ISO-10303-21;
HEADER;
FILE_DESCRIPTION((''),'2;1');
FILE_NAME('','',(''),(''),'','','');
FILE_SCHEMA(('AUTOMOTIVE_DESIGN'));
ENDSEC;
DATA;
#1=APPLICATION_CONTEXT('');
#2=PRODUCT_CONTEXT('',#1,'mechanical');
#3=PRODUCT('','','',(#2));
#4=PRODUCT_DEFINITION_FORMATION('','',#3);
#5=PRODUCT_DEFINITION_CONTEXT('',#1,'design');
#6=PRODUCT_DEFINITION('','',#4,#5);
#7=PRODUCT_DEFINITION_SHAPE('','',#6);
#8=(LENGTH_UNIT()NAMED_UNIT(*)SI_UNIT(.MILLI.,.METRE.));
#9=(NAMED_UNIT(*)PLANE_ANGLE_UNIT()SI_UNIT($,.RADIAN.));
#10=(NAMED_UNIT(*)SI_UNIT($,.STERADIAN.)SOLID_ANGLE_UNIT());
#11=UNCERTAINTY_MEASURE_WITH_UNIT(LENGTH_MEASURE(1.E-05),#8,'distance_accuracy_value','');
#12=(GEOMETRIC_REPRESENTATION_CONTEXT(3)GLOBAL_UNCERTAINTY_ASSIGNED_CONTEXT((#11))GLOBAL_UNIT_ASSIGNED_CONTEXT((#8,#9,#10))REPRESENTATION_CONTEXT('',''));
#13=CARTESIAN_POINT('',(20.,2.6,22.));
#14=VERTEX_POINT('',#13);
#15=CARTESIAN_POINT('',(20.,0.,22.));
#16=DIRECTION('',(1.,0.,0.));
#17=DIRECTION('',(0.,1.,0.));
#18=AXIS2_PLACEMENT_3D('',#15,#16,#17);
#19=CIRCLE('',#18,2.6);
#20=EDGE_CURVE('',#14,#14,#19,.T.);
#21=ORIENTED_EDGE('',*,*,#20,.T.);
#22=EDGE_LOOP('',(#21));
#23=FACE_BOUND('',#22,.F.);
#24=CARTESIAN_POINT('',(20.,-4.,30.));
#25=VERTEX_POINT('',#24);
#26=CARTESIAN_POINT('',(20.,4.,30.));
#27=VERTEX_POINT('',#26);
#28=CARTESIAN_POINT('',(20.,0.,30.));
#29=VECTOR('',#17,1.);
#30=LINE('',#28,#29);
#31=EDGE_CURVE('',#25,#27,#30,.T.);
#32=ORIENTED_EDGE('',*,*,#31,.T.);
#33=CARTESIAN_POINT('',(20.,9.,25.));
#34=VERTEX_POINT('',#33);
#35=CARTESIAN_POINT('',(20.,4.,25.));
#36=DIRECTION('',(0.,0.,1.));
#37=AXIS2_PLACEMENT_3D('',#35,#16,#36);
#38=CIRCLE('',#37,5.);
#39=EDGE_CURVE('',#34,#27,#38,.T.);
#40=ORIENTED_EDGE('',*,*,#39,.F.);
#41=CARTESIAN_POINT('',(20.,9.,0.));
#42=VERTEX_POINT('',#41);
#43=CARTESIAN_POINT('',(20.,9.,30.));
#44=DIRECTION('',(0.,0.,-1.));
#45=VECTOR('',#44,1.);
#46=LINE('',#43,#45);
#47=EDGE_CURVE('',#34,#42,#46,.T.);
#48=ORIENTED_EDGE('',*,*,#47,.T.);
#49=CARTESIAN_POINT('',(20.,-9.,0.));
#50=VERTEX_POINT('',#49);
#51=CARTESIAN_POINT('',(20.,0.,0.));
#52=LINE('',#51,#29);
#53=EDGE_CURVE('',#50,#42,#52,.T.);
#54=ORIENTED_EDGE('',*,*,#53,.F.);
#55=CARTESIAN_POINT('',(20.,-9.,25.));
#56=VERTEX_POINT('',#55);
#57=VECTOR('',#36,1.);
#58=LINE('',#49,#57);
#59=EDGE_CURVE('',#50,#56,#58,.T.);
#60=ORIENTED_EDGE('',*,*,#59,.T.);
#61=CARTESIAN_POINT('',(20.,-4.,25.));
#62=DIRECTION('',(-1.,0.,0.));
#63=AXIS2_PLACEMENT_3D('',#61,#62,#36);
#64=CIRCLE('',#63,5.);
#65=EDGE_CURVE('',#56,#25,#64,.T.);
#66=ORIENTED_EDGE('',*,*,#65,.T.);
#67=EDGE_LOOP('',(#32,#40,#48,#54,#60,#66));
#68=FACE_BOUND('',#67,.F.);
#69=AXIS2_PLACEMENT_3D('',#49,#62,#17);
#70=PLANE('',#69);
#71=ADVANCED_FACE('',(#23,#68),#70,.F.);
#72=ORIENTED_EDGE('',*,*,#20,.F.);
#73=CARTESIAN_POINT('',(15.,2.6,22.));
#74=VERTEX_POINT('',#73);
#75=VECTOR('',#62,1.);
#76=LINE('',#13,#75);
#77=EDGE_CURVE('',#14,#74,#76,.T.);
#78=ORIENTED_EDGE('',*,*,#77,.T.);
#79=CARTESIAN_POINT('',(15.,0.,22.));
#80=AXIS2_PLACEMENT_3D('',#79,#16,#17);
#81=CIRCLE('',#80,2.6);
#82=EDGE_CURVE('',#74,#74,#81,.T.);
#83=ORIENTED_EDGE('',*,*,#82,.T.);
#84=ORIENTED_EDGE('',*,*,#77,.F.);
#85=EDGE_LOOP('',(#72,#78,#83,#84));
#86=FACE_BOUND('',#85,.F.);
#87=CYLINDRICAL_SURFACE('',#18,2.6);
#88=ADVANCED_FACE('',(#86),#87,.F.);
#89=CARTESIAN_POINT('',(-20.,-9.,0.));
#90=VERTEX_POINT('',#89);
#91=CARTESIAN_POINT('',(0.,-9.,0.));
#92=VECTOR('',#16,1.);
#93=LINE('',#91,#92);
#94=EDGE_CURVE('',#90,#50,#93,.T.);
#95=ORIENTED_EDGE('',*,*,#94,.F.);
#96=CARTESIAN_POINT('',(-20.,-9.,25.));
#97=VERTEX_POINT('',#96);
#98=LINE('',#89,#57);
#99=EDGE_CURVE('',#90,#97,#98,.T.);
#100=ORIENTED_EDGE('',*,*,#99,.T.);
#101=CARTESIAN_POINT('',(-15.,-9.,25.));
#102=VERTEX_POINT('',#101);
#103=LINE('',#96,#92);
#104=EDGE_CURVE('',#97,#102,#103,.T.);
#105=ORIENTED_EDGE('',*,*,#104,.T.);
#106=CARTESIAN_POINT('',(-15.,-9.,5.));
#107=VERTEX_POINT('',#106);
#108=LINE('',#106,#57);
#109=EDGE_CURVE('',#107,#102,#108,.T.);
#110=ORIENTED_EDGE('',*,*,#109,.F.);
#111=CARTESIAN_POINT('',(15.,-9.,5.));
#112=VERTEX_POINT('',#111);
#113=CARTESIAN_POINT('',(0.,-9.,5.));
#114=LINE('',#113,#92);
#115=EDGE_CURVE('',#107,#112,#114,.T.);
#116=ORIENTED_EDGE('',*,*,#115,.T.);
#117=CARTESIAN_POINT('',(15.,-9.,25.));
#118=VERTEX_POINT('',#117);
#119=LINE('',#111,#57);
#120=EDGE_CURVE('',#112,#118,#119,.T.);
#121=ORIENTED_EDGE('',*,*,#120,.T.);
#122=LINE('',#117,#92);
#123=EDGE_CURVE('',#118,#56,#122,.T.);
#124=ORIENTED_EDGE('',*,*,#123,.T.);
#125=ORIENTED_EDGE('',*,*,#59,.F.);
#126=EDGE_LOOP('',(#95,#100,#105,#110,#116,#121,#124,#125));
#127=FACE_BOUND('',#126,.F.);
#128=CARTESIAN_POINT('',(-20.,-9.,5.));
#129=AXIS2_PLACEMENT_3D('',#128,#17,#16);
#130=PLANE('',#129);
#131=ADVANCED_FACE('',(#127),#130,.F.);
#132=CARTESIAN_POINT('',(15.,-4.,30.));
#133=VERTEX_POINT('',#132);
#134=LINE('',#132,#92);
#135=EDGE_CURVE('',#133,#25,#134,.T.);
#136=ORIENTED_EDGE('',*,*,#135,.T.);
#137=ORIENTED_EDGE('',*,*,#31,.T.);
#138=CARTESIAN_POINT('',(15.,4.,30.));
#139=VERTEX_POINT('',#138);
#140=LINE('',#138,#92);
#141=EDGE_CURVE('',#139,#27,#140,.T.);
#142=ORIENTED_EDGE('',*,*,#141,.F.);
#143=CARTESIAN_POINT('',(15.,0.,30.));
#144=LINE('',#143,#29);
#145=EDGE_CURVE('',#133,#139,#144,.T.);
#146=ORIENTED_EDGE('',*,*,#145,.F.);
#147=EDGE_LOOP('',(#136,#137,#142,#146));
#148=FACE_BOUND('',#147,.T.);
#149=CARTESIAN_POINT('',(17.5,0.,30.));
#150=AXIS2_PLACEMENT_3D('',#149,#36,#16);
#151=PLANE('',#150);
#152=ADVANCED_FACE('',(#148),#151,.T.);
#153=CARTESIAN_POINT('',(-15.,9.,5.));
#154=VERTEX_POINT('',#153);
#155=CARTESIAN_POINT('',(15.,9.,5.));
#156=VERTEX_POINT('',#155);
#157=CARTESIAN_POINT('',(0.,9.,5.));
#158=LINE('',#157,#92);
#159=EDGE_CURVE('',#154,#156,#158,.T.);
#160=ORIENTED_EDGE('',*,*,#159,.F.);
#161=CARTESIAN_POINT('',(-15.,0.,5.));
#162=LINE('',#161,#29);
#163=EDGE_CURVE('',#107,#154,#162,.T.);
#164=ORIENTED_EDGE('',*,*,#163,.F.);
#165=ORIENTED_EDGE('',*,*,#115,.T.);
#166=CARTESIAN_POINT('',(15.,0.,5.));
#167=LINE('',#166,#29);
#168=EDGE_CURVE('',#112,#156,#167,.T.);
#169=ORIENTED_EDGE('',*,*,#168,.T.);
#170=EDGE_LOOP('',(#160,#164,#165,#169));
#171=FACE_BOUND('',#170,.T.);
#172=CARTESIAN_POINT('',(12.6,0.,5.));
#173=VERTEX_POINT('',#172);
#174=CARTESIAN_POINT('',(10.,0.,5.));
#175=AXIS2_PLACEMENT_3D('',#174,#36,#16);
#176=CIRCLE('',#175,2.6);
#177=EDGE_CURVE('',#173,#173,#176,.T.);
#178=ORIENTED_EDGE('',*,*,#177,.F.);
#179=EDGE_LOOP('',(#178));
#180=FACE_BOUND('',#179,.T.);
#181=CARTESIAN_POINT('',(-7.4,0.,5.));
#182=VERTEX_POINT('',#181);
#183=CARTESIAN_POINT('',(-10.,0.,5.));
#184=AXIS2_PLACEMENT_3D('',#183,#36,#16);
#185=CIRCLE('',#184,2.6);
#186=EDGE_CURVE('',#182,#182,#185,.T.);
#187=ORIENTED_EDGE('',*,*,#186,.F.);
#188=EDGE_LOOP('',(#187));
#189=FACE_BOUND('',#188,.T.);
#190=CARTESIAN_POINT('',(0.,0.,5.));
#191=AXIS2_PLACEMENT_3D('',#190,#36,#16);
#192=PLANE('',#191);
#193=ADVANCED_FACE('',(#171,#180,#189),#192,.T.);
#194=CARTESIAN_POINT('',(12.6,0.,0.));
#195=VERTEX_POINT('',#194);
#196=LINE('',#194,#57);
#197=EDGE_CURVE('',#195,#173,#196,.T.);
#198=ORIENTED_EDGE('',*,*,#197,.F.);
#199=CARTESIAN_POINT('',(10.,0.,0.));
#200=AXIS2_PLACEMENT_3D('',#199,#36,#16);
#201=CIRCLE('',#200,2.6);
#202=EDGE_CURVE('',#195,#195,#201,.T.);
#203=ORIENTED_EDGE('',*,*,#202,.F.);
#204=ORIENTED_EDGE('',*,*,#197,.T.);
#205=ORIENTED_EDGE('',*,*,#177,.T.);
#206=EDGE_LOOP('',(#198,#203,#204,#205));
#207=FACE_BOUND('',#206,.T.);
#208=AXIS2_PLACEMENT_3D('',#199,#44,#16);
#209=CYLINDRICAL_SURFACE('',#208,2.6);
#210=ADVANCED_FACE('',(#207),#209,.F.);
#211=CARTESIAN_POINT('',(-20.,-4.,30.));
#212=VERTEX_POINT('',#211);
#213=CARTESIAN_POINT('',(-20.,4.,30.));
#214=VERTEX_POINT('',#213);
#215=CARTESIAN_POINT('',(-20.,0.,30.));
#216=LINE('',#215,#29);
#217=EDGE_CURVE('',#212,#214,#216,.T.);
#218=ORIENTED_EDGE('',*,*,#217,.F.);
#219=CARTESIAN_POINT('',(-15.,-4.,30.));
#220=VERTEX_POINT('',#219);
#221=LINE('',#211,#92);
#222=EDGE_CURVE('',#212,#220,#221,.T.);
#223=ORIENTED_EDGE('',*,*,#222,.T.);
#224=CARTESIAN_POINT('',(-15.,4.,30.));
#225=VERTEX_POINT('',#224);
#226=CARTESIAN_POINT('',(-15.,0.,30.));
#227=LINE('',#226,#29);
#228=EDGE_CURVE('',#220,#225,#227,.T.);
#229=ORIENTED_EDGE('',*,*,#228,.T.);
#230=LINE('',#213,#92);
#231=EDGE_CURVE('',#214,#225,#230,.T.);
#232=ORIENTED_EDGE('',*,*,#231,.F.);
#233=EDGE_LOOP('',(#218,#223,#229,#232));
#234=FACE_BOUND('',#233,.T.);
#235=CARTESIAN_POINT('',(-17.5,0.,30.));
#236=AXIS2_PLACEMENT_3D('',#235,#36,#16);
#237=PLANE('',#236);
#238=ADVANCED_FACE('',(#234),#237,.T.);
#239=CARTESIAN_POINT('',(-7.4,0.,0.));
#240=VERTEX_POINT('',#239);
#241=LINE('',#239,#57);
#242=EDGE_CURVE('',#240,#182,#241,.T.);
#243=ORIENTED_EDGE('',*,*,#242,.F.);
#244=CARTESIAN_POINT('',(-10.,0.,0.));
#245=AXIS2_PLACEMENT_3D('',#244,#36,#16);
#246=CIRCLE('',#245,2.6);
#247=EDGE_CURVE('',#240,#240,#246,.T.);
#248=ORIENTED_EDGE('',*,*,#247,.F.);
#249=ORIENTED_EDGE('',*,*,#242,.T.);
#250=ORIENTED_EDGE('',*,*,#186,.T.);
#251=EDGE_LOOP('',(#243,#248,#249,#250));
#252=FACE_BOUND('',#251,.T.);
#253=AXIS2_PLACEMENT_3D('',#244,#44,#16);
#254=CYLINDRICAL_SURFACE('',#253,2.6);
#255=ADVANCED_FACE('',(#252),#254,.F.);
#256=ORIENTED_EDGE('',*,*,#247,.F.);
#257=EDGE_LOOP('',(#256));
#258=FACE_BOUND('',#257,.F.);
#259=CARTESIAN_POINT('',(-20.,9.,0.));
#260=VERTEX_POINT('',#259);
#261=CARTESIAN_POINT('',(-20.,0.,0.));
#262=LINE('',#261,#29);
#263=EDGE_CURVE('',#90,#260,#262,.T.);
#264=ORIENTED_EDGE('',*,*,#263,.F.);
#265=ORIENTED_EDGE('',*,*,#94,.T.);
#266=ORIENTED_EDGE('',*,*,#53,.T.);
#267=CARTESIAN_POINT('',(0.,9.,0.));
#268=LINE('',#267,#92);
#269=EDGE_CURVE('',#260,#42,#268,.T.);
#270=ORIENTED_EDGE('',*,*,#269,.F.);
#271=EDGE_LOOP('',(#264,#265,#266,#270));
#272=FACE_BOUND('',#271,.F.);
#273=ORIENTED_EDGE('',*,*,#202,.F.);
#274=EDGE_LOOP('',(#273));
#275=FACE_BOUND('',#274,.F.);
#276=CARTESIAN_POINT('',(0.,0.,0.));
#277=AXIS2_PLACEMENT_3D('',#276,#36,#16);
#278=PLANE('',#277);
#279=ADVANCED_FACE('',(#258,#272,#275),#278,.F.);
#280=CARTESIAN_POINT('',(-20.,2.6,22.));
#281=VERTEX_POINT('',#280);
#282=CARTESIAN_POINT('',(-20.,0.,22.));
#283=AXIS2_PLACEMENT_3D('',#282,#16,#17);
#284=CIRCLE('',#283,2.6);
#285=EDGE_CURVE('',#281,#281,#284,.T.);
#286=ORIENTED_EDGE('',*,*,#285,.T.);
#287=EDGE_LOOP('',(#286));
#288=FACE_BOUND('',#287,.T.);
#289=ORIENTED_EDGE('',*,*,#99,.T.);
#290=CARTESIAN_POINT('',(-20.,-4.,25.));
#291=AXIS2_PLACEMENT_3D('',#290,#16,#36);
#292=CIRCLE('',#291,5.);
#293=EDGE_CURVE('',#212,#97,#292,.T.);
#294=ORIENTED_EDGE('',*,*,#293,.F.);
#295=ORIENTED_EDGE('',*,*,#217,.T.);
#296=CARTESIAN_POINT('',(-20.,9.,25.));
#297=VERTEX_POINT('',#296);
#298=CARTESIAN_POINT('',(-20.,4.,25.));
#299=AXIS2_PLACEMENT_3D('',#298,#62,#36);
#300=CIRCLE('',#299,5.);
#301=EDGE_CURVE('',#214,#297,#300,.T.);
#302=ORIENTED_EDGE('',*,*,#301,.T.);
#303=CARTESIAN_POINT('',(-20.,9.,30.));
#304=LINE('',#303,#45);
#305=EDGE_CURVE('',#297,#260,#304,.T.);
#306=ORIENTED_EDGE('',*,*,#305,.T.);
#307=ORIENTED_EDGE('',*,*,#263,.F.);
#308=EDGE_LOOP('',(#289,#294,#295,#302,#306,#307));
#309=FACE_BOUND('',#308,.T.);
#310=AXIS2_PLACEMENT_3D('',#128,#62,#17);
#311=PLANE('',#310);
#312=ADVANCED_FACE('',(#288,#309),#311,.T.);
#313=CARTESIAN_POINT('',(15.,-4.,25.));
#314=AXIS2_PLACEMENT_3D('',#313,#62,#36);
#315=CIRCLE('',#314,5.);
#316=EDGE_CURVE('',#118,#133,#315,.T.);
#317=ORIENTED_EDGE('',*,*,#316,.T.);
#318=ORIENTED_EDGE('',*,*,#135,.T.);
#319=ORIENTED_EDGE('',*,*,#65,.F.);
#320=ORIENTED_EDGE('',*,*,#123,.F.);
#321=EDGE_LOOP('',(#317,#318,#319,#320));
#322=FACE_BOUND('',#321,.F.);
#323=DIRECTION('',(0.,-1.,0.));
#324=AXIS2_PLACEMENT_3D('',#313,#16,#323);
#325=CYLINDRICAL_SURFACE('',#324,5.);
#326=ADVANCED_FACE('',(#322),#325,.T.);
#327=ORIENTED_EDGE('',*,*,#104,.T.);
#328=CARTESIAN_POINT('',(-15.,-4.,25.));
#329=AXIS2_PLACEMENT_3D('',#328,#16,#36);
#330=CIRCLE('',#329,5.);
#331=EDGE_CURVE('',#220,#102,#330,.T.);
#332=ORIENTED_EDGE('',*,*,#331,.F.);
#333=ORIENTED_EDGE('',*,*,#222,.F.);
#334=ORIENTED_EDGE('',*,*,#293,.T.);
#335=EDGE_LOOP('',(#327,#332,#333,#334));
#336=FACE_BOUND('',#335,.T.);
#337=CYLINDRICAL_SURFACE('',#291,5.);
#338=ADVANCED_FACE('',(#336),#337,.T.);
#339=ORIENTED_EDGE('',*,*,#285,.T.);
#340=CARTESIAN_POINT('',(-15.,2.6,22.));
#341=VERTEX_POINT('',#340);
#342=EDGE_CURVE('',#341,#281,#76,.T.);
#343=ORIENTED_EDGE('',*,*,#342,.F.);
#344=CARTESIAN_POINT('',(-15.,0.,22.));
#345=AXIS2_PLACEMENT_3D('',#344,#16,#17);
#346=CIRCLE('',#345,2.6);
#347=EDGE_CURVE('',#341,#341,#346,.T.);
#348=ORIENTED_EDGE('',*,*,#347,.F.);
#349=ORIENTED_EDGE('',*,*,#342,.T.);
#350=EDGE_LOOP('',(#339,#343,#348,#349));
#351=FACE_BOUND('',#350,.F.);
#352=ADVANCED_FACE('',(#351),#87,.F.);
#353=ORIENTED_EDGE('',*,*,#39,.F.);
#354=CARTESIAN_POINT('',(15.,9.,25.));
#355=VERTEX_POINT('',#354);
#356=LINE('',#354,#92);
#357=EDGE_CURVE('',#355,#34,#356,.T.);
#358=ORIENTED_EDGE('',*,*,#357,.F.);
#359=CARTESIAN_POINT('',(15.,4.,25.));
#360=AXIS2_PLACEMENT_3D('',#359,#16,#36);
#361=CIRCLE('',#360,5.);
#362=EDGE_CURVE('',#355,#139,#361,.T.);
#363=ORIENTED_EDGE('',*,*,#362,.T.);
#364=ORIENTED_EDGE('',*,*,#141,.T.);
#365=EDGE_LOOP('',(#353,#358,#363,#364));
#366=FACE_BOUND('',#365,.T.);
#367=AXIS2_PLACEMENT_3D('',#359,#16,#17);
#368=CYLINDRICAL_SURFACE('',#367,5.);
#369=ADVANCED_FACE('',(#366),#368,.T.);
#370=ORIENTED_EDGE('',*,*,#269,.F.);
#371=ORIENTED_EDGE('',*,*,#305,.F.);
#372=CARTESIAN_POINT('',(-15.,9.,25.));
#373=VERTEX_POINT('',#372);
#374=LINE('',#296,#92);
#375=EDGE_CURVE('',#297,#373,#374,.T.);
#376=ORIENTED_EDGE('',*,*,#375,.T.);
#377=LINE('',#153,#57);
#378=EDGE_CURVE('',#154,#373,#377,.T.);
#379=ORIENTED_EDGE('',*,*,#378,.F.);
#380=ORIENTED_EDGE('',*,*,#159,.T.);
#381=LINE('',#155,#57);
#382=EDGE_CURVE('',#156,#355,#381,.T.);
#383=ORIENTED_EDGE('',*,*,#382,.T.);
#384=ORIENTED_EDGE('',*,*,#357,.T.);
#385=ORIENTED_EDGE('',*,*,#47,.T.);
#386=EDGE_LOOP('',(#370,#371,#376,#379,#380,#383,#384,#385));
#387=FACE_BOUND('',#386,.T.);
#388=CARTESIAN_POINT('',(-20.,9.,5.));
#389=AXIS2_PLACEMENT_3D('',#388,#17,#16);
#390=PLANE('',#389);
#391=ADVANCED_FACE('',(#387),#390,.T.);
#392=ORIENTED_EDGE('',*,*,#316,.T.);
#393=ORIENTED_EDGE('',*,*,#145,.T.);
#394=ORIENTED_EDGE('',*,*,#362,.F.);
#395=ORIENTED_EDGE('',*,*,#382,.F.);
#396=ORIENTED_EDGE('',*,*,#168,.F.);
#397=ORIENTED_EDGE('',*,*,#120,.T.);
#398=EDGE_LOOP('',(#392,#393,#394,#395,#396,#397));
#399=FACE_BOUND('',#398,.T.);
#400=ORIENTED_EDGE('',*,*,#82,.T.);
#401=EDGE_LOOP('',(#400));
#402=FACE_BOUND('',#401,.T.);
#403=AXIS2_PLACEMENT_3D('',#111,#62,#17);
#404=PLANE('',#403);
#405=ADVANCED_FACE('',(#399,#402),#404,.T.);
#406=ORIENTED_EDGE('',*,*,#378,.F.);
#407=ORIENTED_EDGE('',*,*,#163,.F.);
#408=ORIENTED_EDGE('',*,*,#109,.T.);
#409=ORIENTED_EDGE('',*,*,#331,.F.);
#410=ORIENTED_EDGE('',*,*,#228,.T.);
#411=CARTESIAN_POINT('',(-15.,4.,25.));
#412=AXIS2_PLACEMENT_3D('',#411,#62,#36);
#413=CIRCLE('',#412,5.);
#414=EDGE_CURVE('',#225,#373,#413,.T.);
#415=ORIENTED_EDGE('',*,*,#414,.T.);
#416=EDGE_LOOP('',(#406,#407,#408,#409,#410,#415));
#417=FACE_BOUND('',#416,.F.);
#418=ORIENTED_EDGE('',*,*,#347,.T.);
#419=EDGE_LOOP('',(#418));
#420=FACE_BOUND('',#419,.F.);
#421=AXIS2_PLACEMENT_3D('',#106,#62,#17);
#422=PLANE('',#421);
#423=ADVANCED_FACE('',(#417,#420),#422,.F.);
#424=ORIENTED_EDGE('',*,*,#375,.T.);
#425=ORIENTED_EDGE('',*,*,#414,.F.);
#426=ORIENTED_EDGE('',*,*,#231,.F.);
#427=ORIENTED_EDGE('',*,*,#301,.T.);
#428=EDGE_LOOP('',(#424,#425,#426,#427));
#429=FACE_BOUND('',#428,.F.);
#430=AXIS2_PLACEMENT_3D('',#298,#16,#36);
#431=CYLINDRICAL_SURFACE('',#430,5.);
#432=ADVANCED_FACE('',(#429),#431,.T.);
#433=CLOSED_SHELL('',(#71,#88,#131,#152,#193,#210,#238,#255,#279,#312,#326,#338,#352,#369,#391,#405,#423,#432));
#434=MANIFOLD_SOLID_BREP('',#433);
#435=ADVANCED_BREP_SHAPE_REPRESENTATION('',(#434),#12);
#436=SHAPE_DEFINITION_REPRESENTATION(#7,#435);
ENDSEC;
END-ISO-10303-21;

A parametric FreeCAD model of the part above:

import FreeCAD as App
import Part
import Sketcher

V = App.Vector
Q = App.Units.Quantity


def edges_at(feature, points):
    """Names of the edges that pass closest to the given points."""
    edges = feature.Shape.Edges
    near = lambda p: min(range(len(edges)), key=lambda i: edges[i].distToShape(Part.Vertex(*p))[0])
    return sorted({f"Edge{near(p) + 1}" for p in points})

doc = App.newDocument("Part")
body = doc.addObject("PartDesign::Body", "Body")

sketch1 = body.newObject("Sketcher::SketchObject", "Sketch")
sketch1.AttachmentSupport = (doc.getObject("XY_Plane"), [""])
sketch1.MapMode = "FlatFace"
sketch1.addGeometry([
    Part.LineSegment(V(-20, 9, 0), V(-20, -9, 0)),
    Part.LineSegment(V(-20, -9, 0), V(20, -9, 0)),
    Part.LineSegment(V(20, -9, 0), V(20, 9, 0)),
    Part.LineSegment(V(20, 9, 0), V(-20, 9, 0)),
    Part.Circle(V(-10, 0, 0), V(0, 0, 1), 2.6),
    Part.Circle(V(10, 0, 0), V(0, 0, 1), 2.6),
], False)
sketch1.addConstraint([
    Sketcher.Constraint("Coincident", 0, 2, 1, 1),
    Sketcher.Constraint("Coincident", 1, 2, 2, 1),
    Sketcher.Constraint("Coincident", 2, 2, 3, 1),
    Sketcher.Constraint("Coincident", 3, 2, 0, 1),
    Sketcher.Constraint("Vertical", 0),
    Sketcher.Constraint("Horizontal", 1),
    Sketcher.Constraint("Vertical", 2),
    Sketcher.Constraint("Horizontal", 3),
    Sketcher.Constraint("Equal", 4, 5),
    Sketcher.Constraint("Symmetric", 4, 3, 5, 3, -1, 1),
    Sketcher.Constraint("Symmetric", 0, 2, 2, 2, -1, 1),
    Sketcher.Constraint("PointOnObject", 4, 3, -1),
    Sketcher.Constraint("Diameter", 4, Q("5.2 mm")),
    Sketcher.Constraint("DistanceX", 1, 1, 1, 2, Q("40 mm")),
    Sketcher.Constraint("DistanceY", 0, 2, 0, 1, Q("18 mm")),
    Sketcher.Constraint("DistanceX", 4, 3, -1, 1, Q("10 mm")),
])
pad1 = body.newObject("PartDesign::Pad", "Pad")
pad1.Profile = sketch1
pad1.Length = 5

sketch2 = body.newObject("Sketcher::SketchObject", "Sketch001")
sketch2.AttachmentSupport = (doc.getObject("XY_Plane"), [""])
sketch2.MapMode = "FlatFace"
sketch2.AttachmentOffset = App.Placement(V(0, 0, 5), App.Rotation())
sketch2.addGeometry([
    Part.LineSegment(V(-20, 9, 0), V(-20, -9, 0)),
    Part.LineSegment(V(-20, -9, 0), V(-15, -9, 0)),
    Part.LineSegment(V(-15, -9, 0), V(-15, 9, 0)),
    Part.LineSegment(V(-15, 9, 0), V(-20, 9, 0)),
    Part.LineSegment(V(15, 9, 0), V(15, -9, 0)),
    Part.LineSegment(V(15, -9, 0), V(20, -9, 0)),
    Part.LineSegment(V(20, -9, 0), V(20, 9, 0)),
    Part.LineSegment(V(20, 9, 0), V(15, 9, 0)),
], False)
sketch2.addConstraint([
    Sketcher.Constraint("Coincident", 0, 2, 1, 1),
    Sketcher.Constraint("Coincident", 1, 2, 2, 1),
    Sketcher.Constraint("Coincident", 2, 2, 3, 1),
    Sketcher.Constraint("Coincident", 3, 2, 0, 1),
    Sketcher.Constraint("Coincident", 4, 2, 5, 1),
    Sketcher.Constraint("Coincident", 5, 2, 6, 1),
    Sketcher.Constraint("Coincident", 6, 2, 7, 1),
    Sketcher.Constraint("Coincident", 7, 2, 4, 1),
    Sketcher.Constraint("Vertical", 0),
    Sketcher.Constraint("Horizontal", 1),
    Sketcher.Constraint("Vertical", 2),
    Sketcher.Constraint("Horizontal", 3),
    Sketcher.Constraint("Vertical", 4),
    Sketcher.Constraint("Horizontal", 5),
    Sketcher.Constraint("Vertical", 6),
    Sketcher.Constraint("Horizontal", 7),
    Sketcher.Constraint("Symmetric", 2, 2, 4, 2, -1, 1),
    Sketcher.Constraint("Symmetric", 0, 2, 6, 2, -1, 1),
    Sketcher.Constraint("Horizontal", 1, 2, 4, 2),
    Sketcher.Constraint("DistanceX", 1, 1, 1, 2, Q("5 mm")),
    Sketcher.Constraint("DistanceY", 0, 2, 0, 1, Q("18 mm")),
    Sketcher.Constraint("DistanceX", 0, 2, -1, 1, Q("20 mm")),
])
pad2 = body.newObject("PartDesign::Pad", "Pad001")
pad2.Profile = sketch2
pad2.Length = 25

sketch3 = body.newObject("Sketcher::SketchObject", "Sketch002")
sketch3.AttachmentSupport = (doc.getObject("YZ_Plane"), [""])
sketch3.MapMode = "FlatFace"
sketch3.AttachmentOffset = App.Placement(V(0, 0, 20), App.Rotation())
sketch3.addGeometry(Part.Circle(V(0, 22, 0), V(0, 0, 1), 2.6), False)
sketch3.addConstraint([
    Sketcher.Constraint("PointOnObject", 0, 3, -2),
    Sketcher.Constraint("Diameter", 0, Q("5.2 mm")),
    Sketcher.Constraint("DistanceY", -1, 1, 0, 3, Q("22 mm")),
])
pocket1 = body.newObject("PartDesign::Pocket", "Pocket")
pocket1.Profile = sketch3
pocket1.Type = "ThroughAll"
doc.recompute()

fillet = body.newObject("PartDesign::Fillet", "Fillet")
fillet.Base = (pocket1, edges_at(pocket1, [
    (17.5, -9, 30),
    (17.5, 9, 30),
    (-17.5, 9, 30),
    (-17.5, -9, 30),
]))
fillet.Radius = 5

doc.recompute()
